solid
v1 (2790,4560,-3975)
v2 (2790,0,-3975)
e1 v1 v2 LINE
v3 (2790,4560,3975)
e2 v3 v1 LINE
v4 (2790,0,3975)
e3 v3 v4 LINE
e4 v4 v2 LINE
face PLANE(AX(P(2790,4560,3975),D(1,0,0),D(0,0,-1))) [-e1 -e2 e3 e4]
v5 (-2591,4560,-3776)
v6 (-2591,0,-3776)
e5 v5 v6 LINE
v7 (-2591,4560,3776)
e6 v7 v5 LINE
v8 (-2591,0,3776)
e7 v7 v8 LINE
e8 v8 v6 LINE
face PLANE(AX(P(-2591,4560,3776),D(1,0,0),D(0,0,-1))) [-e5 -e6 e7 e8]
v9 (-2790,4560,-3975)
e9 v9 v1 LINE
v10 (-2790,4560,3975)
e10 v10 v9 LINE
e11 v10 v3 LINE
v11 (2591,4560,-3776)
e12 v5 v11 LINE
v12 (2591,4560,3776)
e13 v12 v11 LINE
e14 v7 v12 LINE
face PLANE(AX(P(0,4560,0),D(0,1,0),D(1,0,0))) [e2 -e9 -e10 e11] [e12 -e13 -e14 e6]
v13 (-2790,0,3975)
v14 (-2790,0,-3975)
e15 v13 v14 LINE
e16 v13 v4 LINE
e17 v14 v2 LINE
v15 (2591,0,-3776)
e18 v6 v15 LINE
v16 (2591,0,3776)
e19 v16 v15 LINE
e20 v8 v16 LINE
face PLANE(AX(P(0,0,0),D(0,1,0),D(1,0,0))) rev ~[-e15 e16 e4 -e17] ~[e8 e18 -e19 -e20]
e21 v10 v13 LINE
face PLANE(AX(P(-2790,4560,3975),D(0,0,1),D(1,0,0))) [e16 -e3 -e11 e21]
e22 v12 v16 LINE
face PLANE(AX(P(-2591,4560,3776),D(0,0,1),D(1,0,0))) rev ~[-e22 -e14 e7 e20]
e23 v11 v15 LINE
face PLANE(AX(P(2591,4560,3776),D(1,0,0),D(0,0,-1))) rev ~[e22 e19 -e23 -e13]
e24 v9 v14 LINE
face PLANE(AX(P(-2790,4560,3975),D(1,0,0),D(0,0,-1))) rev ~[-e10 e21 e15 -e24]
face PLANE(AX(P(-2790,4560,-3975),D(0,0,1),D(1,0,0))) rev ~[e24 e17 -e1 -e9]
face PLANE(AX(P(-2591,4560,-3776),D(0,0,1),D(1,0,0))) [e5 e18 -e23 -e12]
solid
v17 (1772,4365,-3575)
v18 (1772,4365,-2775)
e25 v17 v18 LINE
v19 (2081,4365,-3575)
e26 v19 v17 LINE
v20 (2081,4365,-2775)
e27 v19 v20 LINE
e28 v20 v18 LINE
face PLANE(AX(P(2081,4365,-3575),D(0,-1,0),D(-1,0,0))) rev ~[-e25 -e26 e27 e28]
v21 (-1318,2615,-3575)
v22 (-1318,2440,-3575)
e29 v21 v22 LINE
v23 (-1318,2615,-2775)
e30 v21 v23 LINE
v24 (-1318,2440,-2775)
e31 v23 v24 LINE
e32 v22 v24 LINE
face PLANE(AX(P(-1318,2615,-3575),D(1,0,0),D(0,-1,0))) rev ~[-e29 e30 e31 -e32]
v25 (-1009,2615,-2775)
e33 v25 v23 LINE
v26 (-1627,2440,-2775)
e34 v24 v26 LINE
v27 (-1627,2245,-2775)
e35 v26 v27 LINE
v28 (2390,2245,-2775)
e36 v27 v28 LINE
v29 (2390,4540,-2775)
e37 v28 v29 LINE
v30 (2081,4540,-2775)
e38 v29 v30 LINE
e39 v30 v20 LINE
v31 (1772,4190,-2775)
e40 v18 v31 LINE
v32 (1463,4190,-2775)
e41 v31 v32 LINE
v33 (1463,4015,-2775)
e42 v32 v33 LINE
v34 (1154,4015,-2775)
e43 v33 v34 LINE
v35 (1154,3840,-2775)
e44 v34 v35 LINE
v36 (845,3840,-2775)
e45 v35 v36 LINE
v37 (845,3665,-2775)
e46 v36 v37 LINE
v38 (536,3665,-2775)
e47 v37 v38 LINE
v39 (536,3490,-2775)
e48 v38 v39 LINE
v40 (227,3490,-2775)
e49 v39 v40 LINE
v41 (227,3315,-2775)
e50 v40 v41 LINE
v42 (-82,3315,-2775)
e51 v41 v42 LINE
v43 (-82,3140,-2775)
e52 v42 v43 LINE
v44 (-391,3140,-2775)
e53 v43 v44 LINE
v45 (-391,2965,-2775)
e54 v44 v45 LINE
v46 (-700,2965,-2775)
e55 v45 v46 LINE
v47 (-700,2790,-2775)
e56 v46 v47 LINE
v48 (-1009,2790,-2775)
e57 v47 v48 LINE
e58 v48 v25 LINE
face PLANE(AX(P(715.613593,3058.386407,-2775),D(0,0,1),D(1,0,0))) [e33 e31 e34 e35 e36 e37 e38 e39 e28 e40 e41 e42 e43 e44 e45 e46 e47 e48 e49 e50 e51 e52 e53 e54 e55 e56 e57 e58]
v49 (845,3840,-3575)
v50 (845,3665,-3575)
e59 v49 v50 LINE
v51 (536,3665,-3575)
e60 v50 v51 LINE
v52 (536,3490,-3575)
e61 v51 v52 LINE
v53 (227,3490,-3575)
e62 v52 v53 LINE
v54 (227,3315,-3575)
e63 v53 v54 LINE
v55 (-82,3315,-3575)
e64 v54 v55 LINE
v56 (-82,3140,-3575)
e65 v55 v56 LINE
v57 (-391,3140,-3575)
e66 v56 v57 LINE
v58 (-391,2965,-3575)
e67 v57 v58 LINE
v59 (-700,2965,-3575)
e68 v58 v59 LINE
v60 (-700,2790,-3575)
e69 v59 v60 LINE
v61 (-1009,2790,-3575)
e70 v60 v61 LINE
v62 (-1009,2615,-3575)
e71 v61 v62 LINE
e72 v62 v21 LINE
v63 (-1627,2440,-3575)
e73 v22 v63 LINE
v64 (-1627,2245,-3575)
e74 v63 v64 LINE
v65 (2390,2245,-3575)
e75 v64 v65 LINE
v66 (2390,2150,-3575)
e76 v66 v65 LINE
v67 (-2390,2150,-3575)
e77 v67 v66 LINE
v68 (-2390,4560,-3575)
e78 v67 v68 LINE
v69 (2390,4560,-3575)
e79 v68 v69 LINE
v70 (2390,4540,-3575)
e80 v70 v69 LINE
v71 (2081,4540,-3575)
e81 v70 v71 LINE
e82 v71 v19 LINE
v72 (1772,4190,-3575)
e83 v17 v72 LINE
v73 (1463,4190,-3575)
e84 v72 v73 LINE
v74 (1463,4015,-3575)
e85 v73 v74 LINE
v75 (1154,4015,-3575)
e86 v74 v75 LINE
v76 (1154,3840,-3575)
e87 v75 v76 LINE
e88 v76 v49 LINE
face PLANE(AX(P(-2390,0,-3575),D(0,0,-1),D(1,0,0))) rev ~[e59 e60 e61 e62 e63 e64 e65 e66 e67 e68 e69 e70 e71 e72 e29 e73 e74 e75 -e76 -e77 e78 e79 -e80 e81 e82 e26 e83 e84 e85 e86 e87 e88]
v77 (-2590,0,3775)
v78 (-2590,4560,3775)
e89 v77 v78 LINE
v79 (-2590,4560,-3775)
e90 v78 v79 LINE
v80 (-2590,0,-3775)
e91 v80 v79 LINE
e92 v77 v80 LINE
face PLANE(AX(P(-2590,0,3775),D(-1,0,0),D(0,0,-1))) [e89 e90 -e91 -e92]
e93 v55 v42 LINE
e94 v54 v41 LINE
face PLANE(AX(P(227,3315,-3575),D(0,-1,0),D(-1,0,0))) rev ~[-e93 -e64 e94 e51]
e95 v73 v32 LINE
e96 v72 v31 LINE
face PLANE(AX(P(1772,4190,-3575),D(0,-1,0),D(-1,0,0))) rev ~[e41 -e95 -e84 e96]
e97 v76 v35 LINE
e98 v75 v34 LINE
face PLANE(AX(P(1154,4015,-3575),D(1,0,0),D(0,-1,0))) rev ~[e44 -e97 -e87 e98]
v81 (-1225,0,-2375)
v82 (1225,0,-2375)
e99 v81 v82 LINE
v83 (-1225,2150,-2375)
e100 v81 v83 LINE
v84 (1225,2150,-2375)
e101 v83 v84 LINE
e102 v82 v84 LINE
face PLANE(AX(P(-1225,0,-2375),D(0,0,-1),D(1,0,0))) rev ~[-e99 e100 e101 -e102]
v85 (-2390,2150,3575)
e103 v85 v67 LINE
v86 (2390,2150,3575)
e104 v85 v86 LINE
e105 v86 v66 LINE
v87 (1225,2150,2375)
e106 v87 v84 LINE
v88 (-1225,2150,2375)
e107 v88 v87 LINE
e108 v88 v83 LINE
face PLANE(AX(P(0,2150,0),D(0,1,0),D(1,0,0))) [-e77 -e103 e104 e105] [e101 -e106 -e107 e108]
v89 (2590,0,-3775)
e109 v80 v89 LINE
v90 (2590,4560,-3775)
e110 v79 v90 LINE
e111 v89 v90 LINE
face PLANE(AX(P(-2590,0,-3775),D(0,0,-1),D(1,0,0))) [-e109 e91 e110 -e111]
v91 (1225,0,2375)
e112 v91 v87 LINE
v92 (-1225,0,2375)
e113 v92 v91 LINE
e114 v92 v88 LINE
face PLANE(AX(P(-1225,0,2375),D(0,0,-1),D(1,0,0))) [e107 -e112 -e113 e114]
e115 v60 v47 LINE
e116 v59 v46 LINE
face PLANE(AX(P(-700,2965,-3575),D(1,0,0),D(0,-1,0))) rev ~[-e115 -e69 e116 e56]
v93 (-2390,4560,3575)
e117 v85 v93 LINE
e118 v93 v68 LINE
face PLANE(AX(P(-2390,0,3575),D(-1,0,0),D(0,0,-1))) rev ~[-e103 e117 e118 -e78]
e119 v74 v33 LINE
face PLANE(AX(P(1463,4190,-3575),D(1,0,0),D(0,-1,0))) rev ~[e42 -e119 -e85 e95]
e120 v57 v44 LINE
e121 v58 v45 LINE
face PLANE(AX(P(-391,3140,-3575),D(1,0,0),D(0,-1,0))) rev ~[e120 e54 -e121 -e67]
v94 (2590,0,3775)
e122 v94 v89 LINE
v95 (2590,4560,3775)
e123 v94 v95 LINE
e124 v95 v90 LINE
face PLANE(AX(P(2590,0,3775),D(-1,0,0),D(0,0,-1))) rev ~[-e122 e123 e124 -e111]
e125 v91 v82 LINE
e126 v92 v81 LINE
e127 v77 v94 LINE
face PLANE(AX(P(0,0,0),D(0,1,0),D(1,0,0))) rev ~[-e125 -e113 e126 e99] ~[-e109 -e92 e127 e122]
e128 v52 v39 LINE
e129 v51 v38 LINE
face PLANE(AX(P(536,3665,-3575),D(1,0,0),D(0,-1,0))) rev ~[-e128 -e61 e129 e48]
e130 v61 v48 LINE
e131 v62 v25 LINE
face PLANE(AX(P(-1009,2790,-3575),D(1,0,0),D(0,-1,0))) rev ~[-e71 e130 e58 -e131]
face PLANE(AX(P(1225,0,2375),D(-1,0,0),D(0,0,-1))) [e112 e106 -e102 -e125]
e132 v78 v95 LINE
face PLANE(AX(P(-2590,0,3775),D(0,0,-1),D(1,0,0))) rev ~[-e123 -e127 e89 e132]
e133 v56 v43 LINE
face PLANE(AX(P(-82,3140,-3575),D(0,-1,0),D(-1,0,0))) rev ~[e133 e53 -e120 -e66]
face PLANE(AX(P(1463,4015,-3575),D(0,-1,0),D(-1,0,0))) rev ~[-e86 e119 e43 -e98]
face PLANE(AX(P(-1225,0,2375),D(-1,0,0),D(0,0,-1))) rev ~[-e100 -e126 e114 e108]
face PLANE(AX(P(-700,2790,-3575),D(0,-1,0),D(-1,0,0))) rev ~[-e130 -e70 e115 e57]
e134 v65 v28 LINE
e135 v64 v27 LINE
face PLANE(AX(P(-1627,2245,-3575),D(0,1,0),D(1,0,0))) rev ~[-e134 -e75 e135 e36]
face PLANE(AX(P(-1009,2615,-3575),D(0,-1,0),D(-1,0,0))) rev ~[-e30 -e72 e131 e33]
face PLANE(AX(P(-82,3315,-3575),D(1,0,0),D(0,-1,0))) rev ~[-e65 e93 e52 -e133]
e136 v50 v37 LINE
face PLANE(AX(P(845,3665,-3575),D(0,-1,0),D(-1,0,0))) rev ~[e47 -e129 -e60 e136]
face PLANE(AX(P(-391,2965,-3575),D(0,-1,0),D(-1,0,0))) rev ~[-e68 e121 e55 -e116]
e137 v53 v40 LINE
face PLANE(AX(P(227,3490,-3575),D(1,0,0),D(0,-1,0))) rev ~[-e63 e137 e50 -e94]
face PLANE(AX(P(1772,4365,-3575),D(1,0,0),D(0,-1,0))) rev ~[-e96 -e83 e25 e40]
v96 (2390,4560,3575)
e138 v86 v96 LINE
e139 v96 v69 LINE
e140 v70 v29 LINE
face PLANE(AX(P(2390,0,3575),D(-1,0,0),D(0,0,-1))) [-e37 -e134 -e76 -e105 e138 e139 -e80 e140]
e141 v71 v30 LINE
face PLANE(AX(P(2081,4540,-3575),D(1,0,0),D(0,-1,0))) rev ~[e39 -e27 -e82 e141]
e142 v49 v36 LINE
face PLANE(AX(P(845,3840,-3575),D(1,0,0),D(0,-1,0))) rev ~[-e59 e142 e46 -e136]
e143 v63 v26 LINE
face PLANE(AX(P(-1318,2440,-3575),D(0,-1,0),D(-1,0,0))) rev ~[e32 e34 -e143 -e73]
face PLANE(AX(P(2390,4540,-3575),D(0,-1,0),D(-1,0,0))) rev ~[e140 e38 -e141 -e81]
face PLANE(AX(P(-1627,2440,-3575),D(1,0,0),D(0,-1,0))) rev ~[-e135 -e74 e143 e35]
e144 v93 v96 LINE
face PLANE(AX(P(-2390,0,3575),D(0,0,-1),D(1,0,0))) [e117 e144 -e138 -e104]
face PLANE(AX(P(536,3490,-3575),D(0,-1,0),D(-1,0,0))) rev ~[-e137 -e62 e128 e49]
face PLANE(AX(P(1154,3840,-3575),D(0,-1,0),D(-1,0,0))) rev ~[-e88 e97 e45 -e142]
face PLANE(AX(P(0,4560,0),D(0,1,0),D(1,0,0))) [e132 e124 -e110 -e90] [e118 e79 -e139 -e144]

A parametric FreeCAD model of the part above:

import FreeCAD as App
import Part
import Sketcher

V = App.Vector
Q = App.Units.Quantity


def add_polygon(sketch, points):
    """Adds a closed chain of lines whose ends are joined by coincident constraints."""
    first, n = sketch.GeometryCount, len(points)
    for a, b in zip(points, points[1:] + points[:1]):
        sketch.addGeometry(Part.LineSegment(App.Vector(*a, 0), App.Vector(*b, 0)), False)
    for i in range(n):
        sketch.addConstraint(Sketcher.Constraint("Coincident", first + i, 2, first + (i + 1) % n, 1))

doc = App.newDocument("Part")
body = doc.addObject("PartDesign::Body", "Body")

sketch1 = doc.addObject("Sketcher::SketchObject", "Sketch")
body.addObject(sketch1)
sketch1.AttachmentSupport = (doc.XZ_Plane, [""])
sketch1.MapMode = "FlatFace"
add_polygon(sketch1, [(-2590, -3775), (-2590, 3775), (2590, 3775), (2590, -3775)])
add_polygon(sketch1, [(2390, 3575), (-2390, 3575), (-2390, -3575), (2390, -3575)])
sketch1.addConstraint([
    Sketcher.Constraint("Vertical", 0),
    Sketcher.Constraint("Horizontal", 1),
    Sketcher.Constraint("Vertical", 2),
    Sketcher.Constraint("Horizontal", 3),
    Sketcher.Constraint("Horizontal", 4),
    Sketcher.Constraint("Vertical", 5),
    Sketcher.Constraint("Horizontal", 6),
    Sketcher.Constraint("Vertical", 7),
    Sketcher.Constraint("Symmetric", 0, 2, 2, 2, -1, 1),
    Sketcher.Constraint("Symmetric", 4, 2, 6, 2, -1, 1),
    Sketcher.Constraint("DistanceX", 1, 1, 1, 2, Q("5180 mm")),
    Sketcher.Constraint("DistanceX", 4, 2, 4, 1, Q("4780 mm")),
    Sketcher.Constraint("DistanceY", 0, 1, 0, 2, Q("7550 mm")),
    Sketcher.Constraint("DistanceY", 5, 2, 5, 1, Q("7150 mm")),
])
pad1 = doc.addObject("PartDesign::Pad", "Pad")
body.addObject(pad1)
pad1.Profile = sketch1
pad1.Length = 4560
pad1.Reversed = True

sketch2 = doc.addObject("Sketcher::SketchObject", "Sketch001")
body.addObject(sketch2)
sketch2.AttachmentSupport = (doc.XY_Plane, [""])
sketch2.MapMode = "FlatFace"
sketch2.AttachmentOffset = App.Placement(V(0, 0, -3575), App.Rotation())
add_polygon(sketch2, [(2390, 4540), (2081, 4540), (2081, 4365), (1772, 4365), (1772, 4190), (1463, 4190), (1463, 4015), (1154, 4015), (1154, 3840), (845, 3840), (845, 3665), (536, 3665), (536, 3490), (227, 3490), (227, 3315), (-82, 3315), (-82, 3140), (-391, 3140), (-391, 2965), (-700, 2965), (-700, 2790), (-1009, 2790), (-1009, 2615), (-1318, 2615), (-1318, 2440), (-1627, 2440), (-1627, 2245), (2390, 2245)])
sketch2.addConstraint([
    Sketcher.Constraint("Horizontal", 0),
    Sketcher.Constraint("Vertical", 1),
    Sketcher.Constraint("Horizontal", 2),
    Sketcher.Constraint("Vertical", 3),
    Sketcher.Constraint("Horizontal", 4),
    Sketcher.Constraint("Vertical", 5),
    Sketcher.Constraint("Horizontal", 6),
    Sketcher.Constraint("Vertical", 7),
    Sketcher.Constraint("Horizontal", 8),
    Sketcher.Constraint("Vertical", 9),
    Sketcher.Constraint("Horizontal", 10),
    Sketcher.Constraint("Vertical", 11),
    Sketcher.Constraint("Horizontal", 12),
    Sketcher.Constraint("Vertical", 13),
    Sketcher.Constraint("Horizontal", 14),
    Sketcher.Constraint("Vertical", 15),
    Sketcher.Constraint("Horizontal", 16),
    Sketcher.Constraint("Vertical", 17),
    Sketcher.Constraint("Horizontal", 18),
    Sketcher.Constraint("Vertical", 19),
    Sketcher.Constraint("Horizontal", 20),
    Sketcher.Constraint("Vertical", 21),
    Sketcher.Constraint("Horizontal", 22),
    Sketcher.Constraint("Vertical", 23),
    Sketcher.Constraint("Horizontal", 24),
    Sketcher.Constraint("Vertical", 25),
    Sketcher.Constraint("Horizontal", 26),
    Sketcher.Constraint("Vertical", 27),
    Sketcher.Constraint("Equal", 0, 2),
    Sketcher.Constraint("Equal", 2, 4),
    Sketcher.Constraint("Equal", 4, 6),
    Sketcher.Constraint("Equal", 6, 8),
    Sketcher.Constraint("Equal", 8, 10),
    Sketcher.Constraint("Equal", 10, 12),
    Sketcher.Constraint("Equal", 12, 14),
    Sketcher.Constraint("Equal", 14, 16),
    Sketcher.Constraint("Equal", 16, 18),
    Sketcher.Constraint("Equal", 18, 20),
    Sketcher.Constraint("Equal", 20, 22),
    Sketcher.Constraint("Equal", 22, 24),
    Sketcher.Constraint("Equal", 1, 3),
    Sketcher.Constraint("Equal", 3, 5),
    Sketcher.Constraint("Equal", 5, 7),
    Sketcher.Constraint("Equal", 7, 9),
    Sketcher.Constraint("Equal", 9, 11),
    Sketcher.Constraint("Equal", 11, 13),
    Sketcher.Constraint("Equal", 13, 15),
    Sketcher.Constraint("Equal", 15, 17),
    Sketcher.Constraint("Equal", 17, 19),
    Sketcher.Constraint("Equal", 19, 21),
    Sketcher.Constraint("Equal", 21, 23),
    Sketcher.Constraint("DistanceX", 0, 2, 0, 1, Q("309 mm")),
    Sketcher.Constraint("DistanceY", 1, 2, 1, 1, Q("175 mm")),
    Sketcher.Constraint("DistanceY", 25, 2, 25, 1, Q("195 mm")),
    Sketcher.Constraint("DistanceX", -1, 1, 0, 2, Q("2081 mm")),
    Sketcher.Constraint("DistanceY", -1, 1, 0, 2, Q("4540 mm")),
])
pad2 = doc.addObject("PartDesign::Pad", "Pad001")
body.addObject(pad2)
pad2.Profile = sketch2
pad2.Length = 800

sketch3 = doc.addObject("Sketcher::SketchObject", "Sketch002")
body.addObject(sketch3)
sketch3.AttachmentSupport = (doc.XZ_Plane, [""])
sketch3.MapMode = "FlatFace"
add_polygon(sketch3, [(-2390, -3575), (-2390, 3575), (2390, 3575), (2390, -3575)])
add_polygon(sketch3, [(1225, 2375), (-1225, 2375), (-1225, -2375), (1225, -2375)])
sketch3.addConstraint([
    Sketcher.Constraint("Vertical", 0),
    Sketcher.Constraint("Horizontal", 1),
    Sketcher.Constraint("Vertical", 2),
    Sketcher.Constraint("Horizontal", 3),
    Sketcher.Constraint("Horizontal", 4),
    Sketcher.Constraint("Vertical", 5),
    Sketcher.Constraint("Horizontal", 6),
    Sketcher.Constraint("Vertical", 7),
    Sketcher.Constraint("Symmetric", 0, 2, 2, 2, -1, 1),
    Sketcher.Constraint("Symmetric", 4, 2, 6, 2, -1, 1),
    Sketcher.Constraint("DistanceX", 1, 1, 1, 2, Q("4780 mm")),
    Sketcher.Constraint("DistanceX", 4, 2, 4, 1, Q("2450 mm")),
    Sketcher.Constraint("DistanceY", 0, 1, 0, 2, Q("7150 mm")),
    Sketcher.Constraint("DistanceY", 5, 2, 5, 1, Q("4750 mm")),
])
pad3 = doc.addObject("PartDesign::Pad", "Pad002")
body.addObject(pad3)
pad3.Profile = sketch3
pad3.Length = 2150
pad3.Reversed = True
body2 = doc.addObject("PartDesign::Body", "Body001")

sketch4 = doc.addObject("Sketcher::SketchObject", "Sketch003")
body2.addObject(sketch4)
sketch4.AttachmentSupport = (doc.getObject("XZ_Plane001"), [""])
sketch4.MapMode = "FlatFace"
sketch4.AttachmentOffset = App.Placement(V(0, 0, -4560), App.Rotation())
add_polygon(sketch4, [(-2790, -3975), (-2790, 3975), (2790, 3975), (2790, -3975)])
add_polygon(sketch4, [(2591, 3776), (-2591, 3776), (-2591, -3776), (2591, -3776)])
sketch4.addConstraint([
    Sketcher.Constraint("Vertical", 0),
    Sketcher.Constraint("Horizontal", 1),
    Sketcher.Constraint("Vertical", 2),
    Sketcher.Constraint("Horizontal", 3),
    Sketcher.Constraint("Horizontal", 4),
    Sketcher.Constraint("Vertical", 5),
    Sketcher.Constraint("Horizontal", 6),
    Sketcher.Constraint("Vertical", 7),
    Sketcher.Constraint("Symmetric", 0, 2, 2, 2, -1, 1),
    Sketcher.Constraint("Symmetric", 4, 2, 6, 2, -1, 1),
    Sketcher.Constraint("DistanceX", 1, 1, 1, 2, Q("5580 mm")),
    Sketcher.Constraint("DistanceX", 4, 2, 4, 1, Q("5182 mm")),
    Sketcher.Constraint("DistanceY", 0, 1, 0, 2, Q("7950 mm")),
    Sketcher.Constraint("DistanceY", 5, 2, 5, 1, Q("7552 mm")),
])
pad4 = doc.addObject("PartDesign::Pad", "Pad003")
body2.addObject(pad4)
pad4.Profile = sketch4
pad4.Length = 4560

doc.recompute()
